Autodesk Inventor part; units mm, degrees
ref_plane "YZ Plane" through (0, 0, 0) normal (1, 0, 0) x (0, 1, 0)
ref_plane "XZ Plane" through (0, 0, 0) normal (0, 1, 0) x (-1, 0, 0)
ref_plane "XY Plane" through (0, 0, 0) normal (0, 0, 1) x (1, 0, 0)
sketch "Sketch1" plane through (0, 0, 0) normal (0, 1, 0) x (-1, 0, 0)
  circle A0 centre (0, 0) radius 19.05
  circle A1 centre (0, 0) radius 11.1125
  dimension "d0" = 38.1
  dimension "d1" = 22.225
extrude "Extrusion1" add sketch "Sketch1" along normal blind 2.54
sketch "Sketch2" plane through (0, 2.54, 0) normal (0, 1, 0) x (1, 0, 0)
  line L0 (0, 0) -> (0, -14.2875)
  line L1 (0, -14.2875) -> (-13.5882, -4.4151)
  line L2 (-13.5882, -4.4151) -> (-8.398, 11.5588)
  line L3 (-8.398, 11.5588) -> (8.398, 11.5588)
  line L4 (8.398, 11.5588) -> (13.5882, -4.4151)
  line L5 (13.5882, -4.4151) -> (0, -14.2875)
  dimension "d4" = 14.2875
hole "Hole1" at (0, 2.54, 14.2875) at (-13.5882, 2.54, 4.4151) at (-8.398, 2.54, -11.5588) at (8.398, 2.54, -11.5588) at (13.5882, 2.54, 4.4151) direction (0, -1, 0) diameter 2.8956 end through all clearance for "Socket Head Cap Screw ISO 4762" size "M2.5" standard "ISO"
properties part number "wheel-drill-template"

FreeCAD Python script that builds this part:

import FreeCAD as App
import Part
import Sketcher

V = App.Vector
Q = App.Units.Quantity

doc = App.newDocument("Part")
body = doc.addObject("PartDesign::Body", "Body")

sketch1 = body.newObject("Sketcher::SketchObject", "Sketch")
sketch1.AttachmentSupport = (doc.getObject("XZ_Plane"), [""])
sketch1.MapMode = "FlatFace"
sketch1.addGeometry([
    Part.Circle(V(0, 0, 0), V(0, 0, 1), 19.05),
    Part.Circle(V(0, 0, 0), V(0, 0, 1), 11.1125),
], False)
sketch1.addConstraint([
    Sketcher.Constraint("Coincident", 0, 3, -1, 1),
    Sketcher.Constraint("Coincident", 1, 3, -1, 1),
    Sketcher.Constraint("Diameter", 0, Q("1.5 in")),
    Sketcher.Constraint("Diameter", 1, Q("0.875 in")),
])
pad1 = body.newObject("PartDesign::Pad", "Pad")
pad1.Profile = sketch1
pad1.Length = Q("0.1 in")
pad1.Reversed = True

sketch2 = body.newObject("Sketcher::SketchObject", "Sketch001")
sketch2.AttachmentSupport = (doc.getObject("XZ_Plane"), [""])
sketch2.MapMode = "FlatFace"
sketch2.AttachmentOffset = App.Placement(V(0, 0, -0.1 * 25.4), App.Rotation())
sketch2.addGeometry([
    Part.Circle(V(0, 14.2875, 0), V(0, 0, 1), 1.4478),
    Part.Circle(V(-13.5882, 4.4151, 0), V(0, 0, 1), 1.4478),
    Part.Circle(V(-8.398, -11.5588, 0), V(0, 0, 1), 1.4478),
    Part.Circle(V(8.398, -11.5588, 0), V(0, 0, 1), 1.4478),
    Part.Circle(V(13.5882, 4.4151, 0), V(0, 0, 1), 1.4478),
], False)
sketch2.addConstraint([
    Sketcher.Constraint("Equal", 0, 1),
    Sketcher.Constraint("Equal", 1, 2),
    Sketcher.Constraint("Equal", 2, 3),
    Sketcher.Constraint("Equal", 3, 4),
    Sketcher.Constraint("Symmetric", 2, 3, 3, 3, -2),
    Sketcher.Constraint("Symmetric", 1, 3, 4, 3, -2),
    Sketcher.Constraint("PointOnObject", 0, 3, -2),
    Sketcher.Constraint("Diameter", 0, Q("0.114 in")),
    Sketcher.Constraint("DistanceY", -1, 1, 0, 3, Q("0.5625 in")),
    Sketcher.Constraint("DistanceY", 2, 3, 1, 3, Q("0.6289 in")),
    Sketcher.Constraint("DistanceX", 1, 3, 3, 3, Q("0.8656 in")),
    Sketcher.Constraint("DistanceX", 1, 3, -1, 1, Q("13.5882 mm")),
    Sketcher.Constraint("DistanceY", -1, 1, 1, 3, Q("4.415 mm")),
])
doc.recompute()
hole = body.newObject("PartDesign::Hole", "Hole")
hole.Profile = sketch2
hole.ThreadType = "None"
hole.Diameter = Q("0.114 in")
hole.DepthType = "ThroughAll"
hole.Reversed = True

doc.recompute()
